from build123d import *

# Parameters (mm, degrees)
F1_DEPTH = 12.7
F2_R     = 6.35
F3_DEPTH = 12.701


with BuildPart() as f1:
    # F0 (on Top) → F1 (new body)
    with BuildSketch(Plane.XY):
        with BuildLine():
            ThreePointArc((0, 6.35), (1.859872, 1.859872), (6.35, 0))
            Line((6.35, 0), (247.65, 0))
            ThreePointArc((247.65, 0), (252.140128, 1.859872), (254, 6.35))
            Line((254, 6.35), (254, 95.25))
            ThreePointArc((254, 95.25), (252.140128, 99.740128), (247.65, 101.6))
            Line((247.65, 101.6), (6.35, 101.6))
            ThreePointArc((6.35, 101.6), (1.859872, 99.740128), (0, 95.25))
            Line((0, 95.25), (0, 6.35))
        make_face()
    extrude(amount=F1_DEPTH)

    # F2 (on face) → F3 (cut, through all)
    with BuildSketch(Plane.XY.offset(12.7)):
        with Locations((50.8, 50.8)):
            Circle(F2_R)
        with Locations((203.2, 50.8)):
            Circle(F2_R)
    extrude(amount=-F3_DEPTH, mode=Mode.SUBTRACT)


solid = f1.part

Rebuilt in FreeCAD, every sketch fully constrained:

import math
import FreeCAD as App
import Part
import Sketcher

V = App.Vector
Q = App.Units.Quantity

doc = App.newDocument("Part")
body = doc.addObject("PartDesign::Body", "Body")

# Sketch on XY plane
sketch1 = body.newObject("Sketcher::SketchObject", "Sketch")
sketch1.AttachmentSupport = (doc.getObject("XY_Plane"), [""])
sketch1.MapMode = "FlatFace"
sketch1.addGeometry(Part.ArcOfCircle(Part.Circle(V(6.35, 6.35, 0), V(0, 0, 1), 6.35), math.radians(-179.999998), math.radians(-90.000002)), False)
sketch1.addGeometry(Part.LineSegment(V(6.35, 0, 0), V(247.65, 0, 0)), False)
sketch1.addGeometry(Part.ArcOfCircle(Part.Circle(V(247.65, 6.35, 0), V(0, 0, 1), 6.35), math.radians(-89.999998), math.radians(-0.000002)), False)
sketch1.addGeometry(Part.LineSegment(V(254, 6.35, 0), V(254, 95.25, 0)), False)
sketch1.addGeometry(Part.ArcOfCircle(Part.Circle(V(247.65, 95.25, 0), V(0, 0, 1), 6.35), math.radians(0.000002), math.radians(89.999998)), False)
sketch1.addGeometry(Part.LineSegment(V(247.65, 101.6, 0), V(6.35, 101.6, 0)), False)
sketch1.addGeometry(Part.ArcOfCircle(Part.Circle(V(6.35, 95.25, 0), V(0, 0, 1), 6.35), math.radians(90.000002), math.radians(179.999998)), False)
sketch1.addGeometry(Part.LineSegment(V(0, 95.25, 0), V(0, 6.35, 0)), False)
sketch1.addConstraint(Sketcher.Constraint("Tangent", 0, 2, 1, 1))
sketch1.addConstraint(Sketcher.Constraint("Tangent", 1, 2, 2, 1))
sketch1.addConstraint(Sketcher.Constraint("Tangent", 2, 2, 3, 1))
sketch1.addConstraint(Sketcher.Constraint("Tangent", 3, 2, 4, 1))
sketch1.addConstraint(Sketcher.Constraint("Tangent", 4, 2, 5, 1))
sketch1.addConstraint(Sketcher.Constraint("Tangent", 5, 2, 6, 1))
sketch1.addConstraint(Sketcher.Constraint("Tangent", 6, 2, 7, 1))
sketch1.addConstraint(Sketcher.Constraint("Tangent", 7, 2, 0, 1))
sketch1.addConstraint(Sketcher.Constraint("Horizontal", 1))
sketch1.addConstraint(Sketcher.Constraint("Vertical", 3))
sketch1.addConstraint(Sketcher.Constraint("Horizontal", 5))
sketch1.addConstraint(Sketcher.Constraint("Vertical", 7))
sketch1.addConstraint(Sketcher.Constraint("Equal", 0, 2))
sketch1.addConstraint(Sketcher.Constraint("Equal", 2, 4))
sketch1.addConstraint(Sketcher.Constraint("Equal", 4, 6))
sketch1.addConstraint(Sketcher.Constraint("PointOnObject", 0, 2, -1))
sketch1.addConstraint(Sketcher.Constraint("PointOnObject", 6, 2, -2))
sketch1.addConstraint(Sketcher.Constraint("Radius", 0, Q("0.25 in")))
sketch1.addConstraint(Sketcher.Constraint("DistanceX", 1, 1, 1, 2, Q("9.5 in")))
sketch1.addConstraint(Sketcher.Constraint("DistanceY", 3, 1, 3, 2, Q("3.5 in")))
pad1 = body.newObject("PartDesign::Pad", "Pad")
pad1.Profile = sketch1
pad1.Length = Q("0.5 in")

# Sketch on XY plane
sketch2 = body.newObject("Sketcher::SketchObject", "Sketch001")
sketch2.AttachmentSupport = (doc.getObject("XY_Plane"), [""])
sketch2.MapMode = "FlatFace"
sketch2.AttachmentOffset = App.Placement(V(0, 0, 0.5 * 25.4), App.Rotation())
sketch2.addGeometry(Part.Circle(V(50.8, 50.8, 0), V(0, 0, 1), 6.35), False)
sketch2.addGeometry(Part.Circle(V(203.2, 50.8, 0), V(0, 0, 1), 6.35), False)
sketch2.addConstraint(Sketcher.Constraint("Equal", 0, 1))
sketch2.addConstraint(Sketcher.Constraint("Horizontal", 0, 3, 1, 3))
sketch2.addConstraint(Sketcher.Constraint("Diameter", 0, Q("0.5 in")))
sketch2.addConstraint(Sketcher.Constraint("DistanceX", -1, 1, 0, 3, Q("2 in")))
sketch2.addConstraint(Sketcher.Constraint("DistanceY", -1, 1, 0, 3, Q("2 in")))
sketch2.addConstraint(Sketcher.Constraint("DistanceX", -1, 1, 1, 3, Q("8 in")))
pocket1 = body.newObject("PartDesign::Pocket", "Pocket")
pocket1.Profile = sketch2
pocket1.Type = "ThroughAll"

doc.recompute()
